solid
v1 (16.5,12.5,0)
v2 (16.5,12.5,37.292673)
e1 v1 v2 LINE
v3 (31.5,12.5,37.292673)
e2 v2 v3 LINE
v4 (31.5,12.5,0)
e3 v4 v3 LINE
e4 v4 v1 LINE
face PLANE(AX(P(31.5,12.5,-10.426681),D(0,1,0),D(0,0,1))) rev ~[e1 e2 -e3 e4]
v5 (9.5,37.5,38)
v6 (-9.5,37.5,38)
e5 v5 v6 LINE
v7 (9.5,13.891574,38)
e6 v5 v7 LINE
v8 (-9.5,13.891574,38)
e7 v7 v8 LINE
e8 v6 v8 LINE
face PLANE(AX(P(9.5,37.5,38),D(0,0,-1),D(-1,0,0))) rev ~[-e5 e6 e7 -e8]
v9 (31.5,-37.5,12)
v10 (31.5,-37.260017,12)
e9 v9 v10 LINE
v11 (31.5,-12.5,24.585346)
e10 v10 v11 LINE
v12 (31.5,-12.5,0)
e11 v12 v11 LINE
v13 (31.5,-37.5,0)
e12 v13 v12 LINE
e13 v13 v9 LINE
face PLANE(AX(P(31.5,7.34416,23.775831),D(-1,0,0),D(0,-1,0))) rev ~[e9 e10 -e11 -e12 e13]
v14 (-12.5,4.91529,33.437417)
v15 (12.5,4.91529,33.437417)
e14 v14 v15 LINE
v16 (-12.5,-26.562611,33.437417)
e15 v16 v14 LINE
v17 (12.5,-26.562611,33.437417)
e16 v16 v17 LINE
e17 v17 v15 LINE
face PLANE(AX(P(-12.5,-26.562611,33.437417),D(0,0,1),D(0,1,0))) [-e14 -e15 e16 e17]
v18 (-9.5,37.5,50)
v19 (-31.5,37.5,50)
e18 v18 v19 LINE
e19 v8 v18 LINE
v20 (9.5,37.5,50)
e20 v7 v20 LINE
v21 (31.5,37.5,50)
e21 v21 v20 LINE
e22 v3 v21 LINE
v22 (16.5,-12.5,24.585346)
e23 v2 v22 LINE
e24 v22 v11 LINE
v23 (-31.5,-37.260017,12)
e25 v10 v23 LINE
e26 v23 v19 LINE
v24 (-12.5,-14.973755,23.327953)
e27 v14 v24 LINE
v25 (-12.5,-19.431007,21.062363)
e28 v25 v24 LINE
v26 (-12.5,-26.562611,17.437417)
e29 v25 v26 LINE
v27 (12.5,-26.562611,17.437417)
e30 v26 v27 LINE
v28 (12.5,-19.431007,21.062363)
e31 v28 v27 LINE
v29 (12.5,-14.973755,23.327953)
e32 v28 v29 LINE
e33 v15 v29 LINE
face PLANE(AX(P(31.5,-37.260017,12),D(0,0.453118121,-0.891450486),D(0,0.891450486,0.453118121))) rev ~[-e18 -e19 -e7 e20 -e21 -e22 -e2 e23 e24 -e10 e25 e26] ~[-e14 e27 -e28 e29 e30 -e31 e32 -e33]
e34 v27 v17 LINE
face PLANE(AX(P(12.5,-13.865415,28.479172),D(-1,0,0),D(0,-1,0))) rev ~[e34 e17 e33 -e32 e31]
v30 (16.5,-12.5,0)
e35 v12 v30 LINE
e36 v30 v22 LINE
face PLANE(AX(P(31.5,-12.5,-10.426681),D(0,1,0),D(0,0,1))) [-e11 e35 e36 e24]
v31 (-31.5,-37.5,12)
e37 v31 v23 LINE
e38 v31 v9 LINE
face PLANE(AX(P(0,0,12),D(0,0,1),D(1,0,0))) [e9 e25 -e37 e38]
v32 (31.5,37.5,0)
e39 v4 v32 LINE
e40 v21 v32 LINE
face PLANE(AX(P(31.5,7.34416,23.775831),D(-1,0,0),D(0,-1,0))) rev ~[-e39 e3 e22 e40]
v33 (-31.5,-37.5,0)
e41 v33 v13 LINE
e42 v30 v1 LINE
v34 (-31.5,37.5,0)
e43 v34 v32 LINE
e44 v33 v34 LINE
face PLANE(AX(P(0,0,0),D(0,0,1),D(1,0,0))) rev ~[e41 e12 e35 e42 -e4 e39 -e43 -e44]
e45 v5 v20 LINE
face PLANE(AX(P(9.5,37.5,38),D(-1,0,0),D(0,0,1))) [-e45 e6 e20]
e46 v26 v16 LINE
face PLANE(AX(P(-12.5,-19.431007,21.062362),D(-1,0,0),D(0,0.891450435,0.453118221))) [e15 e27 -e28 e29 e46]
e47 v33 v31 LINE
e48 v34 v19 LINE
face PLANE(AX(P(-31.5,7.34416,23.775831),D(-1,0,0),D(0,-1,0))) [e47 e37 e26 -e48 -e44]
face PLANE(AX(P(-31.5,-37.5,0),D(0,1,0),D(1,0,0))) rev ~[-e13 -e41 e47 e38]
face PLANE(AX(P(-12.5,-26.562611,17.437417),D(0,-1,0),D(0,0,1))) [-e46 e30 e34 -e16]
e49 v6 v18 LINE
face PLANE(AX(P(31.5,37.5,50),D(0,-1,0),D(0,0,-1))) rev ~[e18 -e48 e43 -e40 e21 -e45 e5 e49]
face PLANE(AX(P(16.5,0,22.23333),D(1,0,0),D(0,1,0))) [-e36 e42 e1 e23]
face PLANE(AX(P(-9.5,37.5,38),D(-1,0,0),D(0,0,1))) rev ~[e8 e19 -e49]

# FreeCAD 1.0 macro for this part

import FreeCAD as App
import Part
import Sketcher

V = App.Vector
Q = App.Units.Quantity


def add_polygon(sketch, points):
    """Adds a closed chain of lines whose ends are joined by coincident constraints."""
    first, n = sketch.GeometryCount, len(points)
    for a, b in zip(points, points[1:] + points[:1]):
        sketch.addGeometry(Part.LineSegment(App.Vector(*a, 0), App.Vector(*b, 0)), False)
    for i in range(n):
        sketch.addConstraint(Sketcher.Constraint("Coincident", first + i, 2, first + (i + 1) % n, 1))

doc = App.newDocument("Part")
params = doc.addObject("Spreadsheet::Sheet", "Params")
for row, (alias, value) in enumerate([
    ("sketch1_width", "63 mm"),
    ("sketch1_height", "75 mm"),
    ("pad1_length", "12 mm"),
    ("sketch2_height", "38 mm"),
    ("pad2_length", "63 mm"),
    ("sketch3_width", "19 mm"),
    ("sketch4_width", "25 mm"),
    ("pocket2_length", "15 mm"),
    ("sketch5_width", "25 mm"),
    ("sketch5_height", "5 mm"),
    ("pad3_length", "1 mm"),
    ("sketch6_height", "16 mm"),
    ("pad4_length", "25 mm"),
], start=1):
    params.set(f"A{row}", alias)
    params.set(f"B{row}", "=" + value)
    params.setAlias(f"B{row}", alias)

body = doc.addObject("PartDesign::Body", "Body")

# Sketch on XY plane
sketch1 = doc.addObject("Sketcher::SketchObject", "Sketch")
body.addObject(sketch1)
sketch1.AttachmentSupport = (doc.XY_Plane, [""])
sketch1.MapMode = "FlatFace"
add_polygon(sketch1, [(-32, 38), (-32, -38), (32, -38), (32, 38)])  # lines 0-3
sketch1.addConstraint(Sketcher.Constraint("Vertical", 0))
sketch1.addConstraint(Sketcher.Constraint("Horizontal", 1))
sketch1.addConstraint(Sketcher.Constraint("Vertical", 2))
sketch1.addConstraint(Sketcher.Constraint("Horizontal", 3))
sketch1.addConstraint(Sketcher.Constraint("Symmetric", 0, 2, 2, 2, -1, 1))
sketch1.addConstraint(Sketcher.Constraint("DistanceX", 1, 1, 1, 2, Q("63 mm")))
sketch1.addConstraint(Sketcher.Constraint("DistanceY", 0, 2, 0, 1, Q("75 mm")))
sketch1.setExpression("Constraints[9]", "Params.sketch1_width")
sketch1.setExpression("Constraints[10]", "Params.sketch1_height")
pad1 = doc.addObject("PartDesign::Pad", "Pad")
body.addObject(pad1)
pad1.Profile = sketch1
pad1.setExpression("Length", "Params.pad1_length")

# Sketch on YZ plane
sketch2 = doc.addObject("Sketcher::SketchObject", "Sketch001")
body.addObject(sketch2)
sketch2.AttachmentSupport = (doc.YZ_Plane, [""])
sketch2.MapMode = "FlatFace"
sketch2.AttachmentOffset = App.Placement(V(0, 0, 31.5), App.Rotation())
add_polygon(sketch2, [(38, 50), (-37, 12), (38, 12)])  # lines 0-2
sketch2.addConstraint(Sketcher.Constraint("Horizontal", 1))
sketch2.addConstraint(Sketcher.Constraint("Vertical", 2))
sketch2.addConstraint(Sketcher.Constraint("DistanceY", 2, 1, 2, 2, Q("38 mm")))
sketch2.addConstraint(Sketcher.Constraint("DistanceY", -1, 1, 0, 2, Q("12 mm")))
sketch2.addConstraint(Sketcher.Constraint("DistanceX", -1, 1, 1, 2, Q("37.5 mm")))
sketch2.addConstraint(Sketcher.Constraint("DistanceX", 1, 1, 1, 2, Q("74.760017 mm")))
sketch2.setExpression("Constraints[5]", "Params.sketch2_height")
pad2 = doc.addObject("PartDesign::Pad", "Pad001")
body.addObject(pad2)
pad2.Profile = sketch2
pad2.setExpression("Length", "Params.pad2_length")
pad2.Reversed = True

# Sketch on XZ plane
sketch3 = doc.addObject("Sketcher::SketchObject", "Sketch002")
body.addObject(sketch3)
sketch3.AttachmentSupport = (doc.XZ_Plane, [""])
sketch3.MapMode = "FlatFace"
sketch3.AttachmentOffset = App.Placement(V(0, 0, -37.5), App.Rotation())
add_polygon(sketch3, [(10, 60), (10, 38), (-10, 38), (-10, 60)])  # lines 0-3
sketch3.addConstraint(Sketcher.Constraint("Vertical", 0))
sketch3.addConstraint(Sketcher.Constraint("Horizontal", 1))
sketch3.addConstraint(Sketcher.Constraint("Vertical", 2))
sketch3.addConstraint(Sketcher.Constraint("Horizontal", 3))
sketch3.addConstraint(Sketcher.Constraint("DistanceX", 1, 2, 1, 1, Q("19 mm")))
sketch3.addConstraint(Sketcher.Constraint("DistanceY", -1, 1, 0, 2, Q("38 mm")))
sketch3.addConstraint(Sketcher.Constraint("DistanceX", -1, 1, 0, 2, Q("9.5 mm")))
sketch3.addConstraint(Sketcher.Constraint("DistanceY", 0, 2, 0, 1, Q("22.106678 mm")))
sketch3.setExpression("Constraints[8]", "Params.sketch3_width")
pocket1 = doc.addObject("PartDesign::Pocket", "Pocket")
body.addObject(pocket1)
pocket1.Profile = sketch3
pocket1.Type = "ThroughAll"
pocket1.Reversed = True

# Sketch on YZ plane
sketch4 = doc.addObject("Sketcher::SketchObject", "Sketch003")
body.addObject(sketch4)
sketch4.AttachmentSupport = (doc.YZ_Plane, [""])
sketch4.MapMode = "FlatFace"
sketch4.AttachmentOffset = App.Placement(V(0, 0, 31.5), App.Rotation())
add_polygon(sketch4, [(-12, 55), (-12, -10), (12, -10), (12, 55)])  # lines 0-3
sketch4.addConstraint(Sketcher.Constraint("Vertical", 0))
sketch4.addConstraint(Sketcher.Constraint("Horizontal", 1))
sketch4.addConstraint(Sketcher.Constraint("Vertical", 2))
sketch4.addConstraint(Sketcher.Constraint("Horizontal", 3))
sketch4.addConstraint(Sketcher.Constraint("DistanceX", 1, 1, 1, 2, Q("25 mm")))
sketch4.addConstraint(Sketcher.Constraint("DistanceX", 0, 2, -1, 1, Q("12.5 mm")))
sketch4.addConstraint(Sketcher.Constraint("DistanceY", 0, 2, 0, 1, Q("65.320022 mm")))
sketch4.addConstraint(Sketcher.Constraint("DistanceY", 0, 2, -1, 1, Q("10.426681 mm")))
sketch4.setExpression("Constraints[8]", "Params.sketch4_width")
pocket2 = doc.addObject("PartDesign::Pocket", "Pocket001")
body.addObject(pocket2)
pocket2.Profile = sketch4
pocket2.setExpression("Length", "Params.pocket2_length")

# Sketch on an angled plane
sketch5 = doc.addObject("Sketcher::SketchObject", "Sketch004")
body.addObject(sketch5)
sketch5.Placement = App.Placement(V(0, -12.497267, 24.586735), App.Rotation(V(1, 0, 0), V(0, 0.891450435, 0.453118221), V(0, -0.453118221, 0.891450435), "ZXY"))
add_polygon(sketch5, [(-12, -3), (-12, -8), (12, -8), (12, -3)])  # lines 0-3
sketch5.addConstraint(Sketcher.Constraint("Vertical", 0))
sketch5.addConstraint(Sketcher.Constraint("Horizontal", 1))
sketch5.addConstraint(Sketcher.Constraint("Vertical", 2))
sketch5.addConstraint(Sketcher.Constraint("Horizontal", 3))
sketch5.addConstraint(Sketcher.Constraint("DistanceX", 1, 1, 1, 2, Q("25 mm")))
sketch5.addConstraint(Sketcher.Constraint("DistanceY", 0, 2, 0, 1, Q("5 mm")))
sketch5.addConstraint(Sketcher.Constraint("DistanceX", 0, 2, -1, 1, Q("12.5 mm")))
sketch5.addConstraint(Sketcher.Constraint("DistanceY", 0, 2, -1, 1, Q("7.778043 mm")))
sketch5.setExpression("Constraints[8]", "Params.sketch5_width")
sketch5.setExpression("Constraints[9]", "Params.sketch5_height")
pad3 = doc.addObject("PartDesign::Pad", "Pad002")
body.addObject(pad3)
pad3.Profile = sketch5
pad3.setExpression("Length", "Params.pad3_length")

# Sketch on YZ plane
sketch6 = doc.addObject("Sketcher::SketchObject", "Sketch005")
body.addObject(sketch6)
sketch6.AttachmentSupport = (doc.YZ_Plane, [""])
sketch6.MapMode = "FlatFace"
sketch6.AttachmentOffset = App.Placement(V(0, 0, -12.5), App.Rotation())
add_polygon(sketch6, [(5, 33), (-27, 17), (-27, 33)])  # lines 0-2
sketch6.addConstraint(Sketcher.Constraint("Vertical", 1))
sketch6.addConstraint(Sketcher.Constraint("Horizontal", 2))
sketch6.addConstraint(Sketcher.Constraint("DistanceY", 1, 1, 1, 2, Q("16 mm")))
sketch6.addConstraint(Sketcher.Constraint("DistanceX", 2, 1, 2, 2, Q("31.477902 mm")))
sketch6.addConstraint(Sketcher.Constraint("DistanceX", 0, 2, -1, 1, Q("26.562611 mm")))
sketch6.addConstraint(Sketcher.Constraint("DistanceY", -1, 1, 0, 2, Q("17.437417 mm")))
sketch6.setExpression("Constraints[5]", "Params.sketch6_height")
pad4 = doc.addObject("PartDesign::Pad", "Pad003")
body.addObject(pad4)
pad4.Profile = sketch6
pad4.setExpression("Length", "Params.pad4_length")

doc.recompute()
